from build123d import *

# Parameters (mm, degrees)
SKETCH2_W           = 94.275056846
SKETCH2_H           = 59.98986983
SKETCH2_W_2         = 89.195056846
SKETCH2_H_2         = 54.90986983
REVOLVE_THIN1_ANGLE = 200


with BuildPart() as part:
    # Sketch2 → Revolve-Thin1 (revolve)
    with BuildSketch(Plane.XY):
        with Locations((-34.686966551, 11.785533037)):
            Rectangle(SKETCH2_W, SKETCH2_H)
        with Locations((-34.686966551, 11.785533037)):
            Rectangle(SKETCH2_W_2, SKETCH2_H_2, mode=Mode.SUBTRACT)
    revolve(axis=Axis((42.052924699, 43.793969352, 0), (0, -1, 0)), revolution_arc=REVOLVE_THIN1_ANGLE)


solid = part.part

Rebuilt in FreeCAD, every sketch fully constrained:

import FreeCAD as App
import Part
import Sketcher
Q = App.Units.Quantity

doc = App.newDocument("Part")
params = doc.addObject("Spreadsheet::Sheet", "Params")
for row, (alias, value) in enumerate([
    ("revolution_angle", "200 deg"),
], start=1):
    params.set(f"A{row}", alias)
    params.set(f"B{row}", "=" + value)
    params.setAlias(f"B{row}", alias)

body = doc.addObject("PartDesign::Body", "Body")

# Sketch on XY plane
sketch1 = body.newObject("Sketcher::SketchObject", "Sketch")
sketch1.AttachmentSupport = (doc.getObject("XY_Plane"), [""])
sketch1.MapMode = "FlatFace"
sketch1.addGeometry(Part.LineSegment(App.Vector(-81.824495, 41.780468, 0), App.Vector(-81.824495, -18.209402, 0)), False)
sketch1.addGeometry(Part.LineSegment(App.Vector(-81.824495, -18.209402, 0), App.Vector(12.450562, -18.209402, 0)), False)
sketch1.addGeometry(Part.LineSegment(App.Vector(12.450562, -18.209402, 0), App.Vector(12.450562, 41.780468, 0)), False)
sketch1.addGeometry(Part.LineSegment(App.Vector(12.450562, 41.780468, 0), App.Vector(-81.824495, 41.780468, 0)), False)
sketch1.addGeometry(Part.LineSegment(App.Vector(9.910562, -15.669402, 0), App.Vector(-79.284495, -15.669402, 0)), False)
sketch1.addGeometry(Part.LineSegment(App.Vector(-79.284495, -15.669402, 0), App.Vector(-79.284495, 39.240468, 0)), False)
sketch1.addGeometry(Part.LineSegment(App.Vector(-79.284495, 39.240468, 0), App.Vector(9.910562, 39.240468, 0)), False)
sketch1.addGeometry(Part.LineSegment(App.Vector(9.910562, 39.240468, 0), App.Vector(9.910562, -15.669402, 0)), False)
sketch1.addGeometry(Part.LineSegment(App.Vector(42.052925, 41.780468, 0), App.Vector(42.052925, -18.209402, 0)), True)  # axis
sketch1.addConstraint(Sketcher.Constraint("Coincident", 0, 2, 1, 1))
sketch1.addConstraint(Sketcher.Constraint("Coincident", 1, 2, 2, 1))
sketch1.addConstraint(Sketcher.Constraint("Coincident", 2, 2, 3, 1))
sketch1.addConstraint(Sketcher.Constraint("Coincident", 3, 2, 0, 1))
sketch1.addConstraint(Sketcher.Constraint("Coincident", 4, 2, 5, 1))
sketch1.addConstraint(Sketcher.Constraint("Coincident", 5, 2, 6, 1))
sketch1.addConstraint(Sketcher.Constraint("Coincident", 6, 2, 7, 1))
sketch1.addConstraint(Sketcher.Constraint("Coincident", 7, 2, 4, 1))
sketch1.addConstraint(Sketcher.Constraint("Vertical", 0))
sketch1.addConstraint(Sketcher.Constraint("Horizontal", 1))
sketch1.addConstraint(Sketcher.Constraint("Vertical", 2))
sketch1.addConstraint(Sketcher.Constraint("Horizontal", 3))
sketch1.addConstraint(Sketcher.Constraint("Horizontal", 4))
sketch1.addConstraint(Sketcher.Constraint("Vertical", 5))
sketch1.addConstraint(Sketcher.Constraint("Horizontal", 6))
sketch1.addConstraint(Sketcher.Constraint("Vertical", 7))
sketch1.addConstraint(Sketcher.Constraint("Vertical", 8))
sketch1.addConstraint(Sketcher.Constraint("Horizontal", 3, 2, 8, 1))
sketch1.addConstraint(Sketcher.Constraint("Horizontal", 1, 2, 8, 2))
sketch1.addConstraint(Sketcher.Constraint("DistanceX", 0, 2, 4, 2, Q("2.54 mm")))
sketch1.addConstraint(Sketcher.Constraint("DistanceY", 0, 2, 4, 2, Q("2.54 mm")))
sketch1.addConstraint(Sketcher.Constraint("DistanceY", 5, 2, 3, 2, Q("2.54 mm")))
sketch1.addConstraint(Sketcher.Constraint("DistanceX", 6, 2, 2, 2, Q("2.54 mm")))
sketch1.addConstraint(Sketcher.Constraint("DistanceY", 0, 2, 0, 1, Q("59.98987 mm")))
sketch1.addConstraint(Sketcher.Constraint("DistanceY", 0, 2, -1, 1, Q("18.209402 mm")))
sketch1.addConstraint(Sketcher.Constraint("DistanceX", 1, 1, 1, 2, Q("94.275057 mm")))
sketch1.addConstraint(Sketcher.Constraint("DistanceX", -1, 1, 1, 2, Q("12.450562 mm")))
sketch1.addConstraint(Sketcher.Constraint("DistanceX", 5, 2, 8, 1, Q("121.33742 mm")))
revolution = body.newObject("PartDesign::Revolution", "Revolution")
revolution.Profile = sketch1
revolution.ReferenceAxis = (sketch1, ["Axis0"])
revolution.setExpression("Angle", "Params.revolution_angle")

doc.recompute()
